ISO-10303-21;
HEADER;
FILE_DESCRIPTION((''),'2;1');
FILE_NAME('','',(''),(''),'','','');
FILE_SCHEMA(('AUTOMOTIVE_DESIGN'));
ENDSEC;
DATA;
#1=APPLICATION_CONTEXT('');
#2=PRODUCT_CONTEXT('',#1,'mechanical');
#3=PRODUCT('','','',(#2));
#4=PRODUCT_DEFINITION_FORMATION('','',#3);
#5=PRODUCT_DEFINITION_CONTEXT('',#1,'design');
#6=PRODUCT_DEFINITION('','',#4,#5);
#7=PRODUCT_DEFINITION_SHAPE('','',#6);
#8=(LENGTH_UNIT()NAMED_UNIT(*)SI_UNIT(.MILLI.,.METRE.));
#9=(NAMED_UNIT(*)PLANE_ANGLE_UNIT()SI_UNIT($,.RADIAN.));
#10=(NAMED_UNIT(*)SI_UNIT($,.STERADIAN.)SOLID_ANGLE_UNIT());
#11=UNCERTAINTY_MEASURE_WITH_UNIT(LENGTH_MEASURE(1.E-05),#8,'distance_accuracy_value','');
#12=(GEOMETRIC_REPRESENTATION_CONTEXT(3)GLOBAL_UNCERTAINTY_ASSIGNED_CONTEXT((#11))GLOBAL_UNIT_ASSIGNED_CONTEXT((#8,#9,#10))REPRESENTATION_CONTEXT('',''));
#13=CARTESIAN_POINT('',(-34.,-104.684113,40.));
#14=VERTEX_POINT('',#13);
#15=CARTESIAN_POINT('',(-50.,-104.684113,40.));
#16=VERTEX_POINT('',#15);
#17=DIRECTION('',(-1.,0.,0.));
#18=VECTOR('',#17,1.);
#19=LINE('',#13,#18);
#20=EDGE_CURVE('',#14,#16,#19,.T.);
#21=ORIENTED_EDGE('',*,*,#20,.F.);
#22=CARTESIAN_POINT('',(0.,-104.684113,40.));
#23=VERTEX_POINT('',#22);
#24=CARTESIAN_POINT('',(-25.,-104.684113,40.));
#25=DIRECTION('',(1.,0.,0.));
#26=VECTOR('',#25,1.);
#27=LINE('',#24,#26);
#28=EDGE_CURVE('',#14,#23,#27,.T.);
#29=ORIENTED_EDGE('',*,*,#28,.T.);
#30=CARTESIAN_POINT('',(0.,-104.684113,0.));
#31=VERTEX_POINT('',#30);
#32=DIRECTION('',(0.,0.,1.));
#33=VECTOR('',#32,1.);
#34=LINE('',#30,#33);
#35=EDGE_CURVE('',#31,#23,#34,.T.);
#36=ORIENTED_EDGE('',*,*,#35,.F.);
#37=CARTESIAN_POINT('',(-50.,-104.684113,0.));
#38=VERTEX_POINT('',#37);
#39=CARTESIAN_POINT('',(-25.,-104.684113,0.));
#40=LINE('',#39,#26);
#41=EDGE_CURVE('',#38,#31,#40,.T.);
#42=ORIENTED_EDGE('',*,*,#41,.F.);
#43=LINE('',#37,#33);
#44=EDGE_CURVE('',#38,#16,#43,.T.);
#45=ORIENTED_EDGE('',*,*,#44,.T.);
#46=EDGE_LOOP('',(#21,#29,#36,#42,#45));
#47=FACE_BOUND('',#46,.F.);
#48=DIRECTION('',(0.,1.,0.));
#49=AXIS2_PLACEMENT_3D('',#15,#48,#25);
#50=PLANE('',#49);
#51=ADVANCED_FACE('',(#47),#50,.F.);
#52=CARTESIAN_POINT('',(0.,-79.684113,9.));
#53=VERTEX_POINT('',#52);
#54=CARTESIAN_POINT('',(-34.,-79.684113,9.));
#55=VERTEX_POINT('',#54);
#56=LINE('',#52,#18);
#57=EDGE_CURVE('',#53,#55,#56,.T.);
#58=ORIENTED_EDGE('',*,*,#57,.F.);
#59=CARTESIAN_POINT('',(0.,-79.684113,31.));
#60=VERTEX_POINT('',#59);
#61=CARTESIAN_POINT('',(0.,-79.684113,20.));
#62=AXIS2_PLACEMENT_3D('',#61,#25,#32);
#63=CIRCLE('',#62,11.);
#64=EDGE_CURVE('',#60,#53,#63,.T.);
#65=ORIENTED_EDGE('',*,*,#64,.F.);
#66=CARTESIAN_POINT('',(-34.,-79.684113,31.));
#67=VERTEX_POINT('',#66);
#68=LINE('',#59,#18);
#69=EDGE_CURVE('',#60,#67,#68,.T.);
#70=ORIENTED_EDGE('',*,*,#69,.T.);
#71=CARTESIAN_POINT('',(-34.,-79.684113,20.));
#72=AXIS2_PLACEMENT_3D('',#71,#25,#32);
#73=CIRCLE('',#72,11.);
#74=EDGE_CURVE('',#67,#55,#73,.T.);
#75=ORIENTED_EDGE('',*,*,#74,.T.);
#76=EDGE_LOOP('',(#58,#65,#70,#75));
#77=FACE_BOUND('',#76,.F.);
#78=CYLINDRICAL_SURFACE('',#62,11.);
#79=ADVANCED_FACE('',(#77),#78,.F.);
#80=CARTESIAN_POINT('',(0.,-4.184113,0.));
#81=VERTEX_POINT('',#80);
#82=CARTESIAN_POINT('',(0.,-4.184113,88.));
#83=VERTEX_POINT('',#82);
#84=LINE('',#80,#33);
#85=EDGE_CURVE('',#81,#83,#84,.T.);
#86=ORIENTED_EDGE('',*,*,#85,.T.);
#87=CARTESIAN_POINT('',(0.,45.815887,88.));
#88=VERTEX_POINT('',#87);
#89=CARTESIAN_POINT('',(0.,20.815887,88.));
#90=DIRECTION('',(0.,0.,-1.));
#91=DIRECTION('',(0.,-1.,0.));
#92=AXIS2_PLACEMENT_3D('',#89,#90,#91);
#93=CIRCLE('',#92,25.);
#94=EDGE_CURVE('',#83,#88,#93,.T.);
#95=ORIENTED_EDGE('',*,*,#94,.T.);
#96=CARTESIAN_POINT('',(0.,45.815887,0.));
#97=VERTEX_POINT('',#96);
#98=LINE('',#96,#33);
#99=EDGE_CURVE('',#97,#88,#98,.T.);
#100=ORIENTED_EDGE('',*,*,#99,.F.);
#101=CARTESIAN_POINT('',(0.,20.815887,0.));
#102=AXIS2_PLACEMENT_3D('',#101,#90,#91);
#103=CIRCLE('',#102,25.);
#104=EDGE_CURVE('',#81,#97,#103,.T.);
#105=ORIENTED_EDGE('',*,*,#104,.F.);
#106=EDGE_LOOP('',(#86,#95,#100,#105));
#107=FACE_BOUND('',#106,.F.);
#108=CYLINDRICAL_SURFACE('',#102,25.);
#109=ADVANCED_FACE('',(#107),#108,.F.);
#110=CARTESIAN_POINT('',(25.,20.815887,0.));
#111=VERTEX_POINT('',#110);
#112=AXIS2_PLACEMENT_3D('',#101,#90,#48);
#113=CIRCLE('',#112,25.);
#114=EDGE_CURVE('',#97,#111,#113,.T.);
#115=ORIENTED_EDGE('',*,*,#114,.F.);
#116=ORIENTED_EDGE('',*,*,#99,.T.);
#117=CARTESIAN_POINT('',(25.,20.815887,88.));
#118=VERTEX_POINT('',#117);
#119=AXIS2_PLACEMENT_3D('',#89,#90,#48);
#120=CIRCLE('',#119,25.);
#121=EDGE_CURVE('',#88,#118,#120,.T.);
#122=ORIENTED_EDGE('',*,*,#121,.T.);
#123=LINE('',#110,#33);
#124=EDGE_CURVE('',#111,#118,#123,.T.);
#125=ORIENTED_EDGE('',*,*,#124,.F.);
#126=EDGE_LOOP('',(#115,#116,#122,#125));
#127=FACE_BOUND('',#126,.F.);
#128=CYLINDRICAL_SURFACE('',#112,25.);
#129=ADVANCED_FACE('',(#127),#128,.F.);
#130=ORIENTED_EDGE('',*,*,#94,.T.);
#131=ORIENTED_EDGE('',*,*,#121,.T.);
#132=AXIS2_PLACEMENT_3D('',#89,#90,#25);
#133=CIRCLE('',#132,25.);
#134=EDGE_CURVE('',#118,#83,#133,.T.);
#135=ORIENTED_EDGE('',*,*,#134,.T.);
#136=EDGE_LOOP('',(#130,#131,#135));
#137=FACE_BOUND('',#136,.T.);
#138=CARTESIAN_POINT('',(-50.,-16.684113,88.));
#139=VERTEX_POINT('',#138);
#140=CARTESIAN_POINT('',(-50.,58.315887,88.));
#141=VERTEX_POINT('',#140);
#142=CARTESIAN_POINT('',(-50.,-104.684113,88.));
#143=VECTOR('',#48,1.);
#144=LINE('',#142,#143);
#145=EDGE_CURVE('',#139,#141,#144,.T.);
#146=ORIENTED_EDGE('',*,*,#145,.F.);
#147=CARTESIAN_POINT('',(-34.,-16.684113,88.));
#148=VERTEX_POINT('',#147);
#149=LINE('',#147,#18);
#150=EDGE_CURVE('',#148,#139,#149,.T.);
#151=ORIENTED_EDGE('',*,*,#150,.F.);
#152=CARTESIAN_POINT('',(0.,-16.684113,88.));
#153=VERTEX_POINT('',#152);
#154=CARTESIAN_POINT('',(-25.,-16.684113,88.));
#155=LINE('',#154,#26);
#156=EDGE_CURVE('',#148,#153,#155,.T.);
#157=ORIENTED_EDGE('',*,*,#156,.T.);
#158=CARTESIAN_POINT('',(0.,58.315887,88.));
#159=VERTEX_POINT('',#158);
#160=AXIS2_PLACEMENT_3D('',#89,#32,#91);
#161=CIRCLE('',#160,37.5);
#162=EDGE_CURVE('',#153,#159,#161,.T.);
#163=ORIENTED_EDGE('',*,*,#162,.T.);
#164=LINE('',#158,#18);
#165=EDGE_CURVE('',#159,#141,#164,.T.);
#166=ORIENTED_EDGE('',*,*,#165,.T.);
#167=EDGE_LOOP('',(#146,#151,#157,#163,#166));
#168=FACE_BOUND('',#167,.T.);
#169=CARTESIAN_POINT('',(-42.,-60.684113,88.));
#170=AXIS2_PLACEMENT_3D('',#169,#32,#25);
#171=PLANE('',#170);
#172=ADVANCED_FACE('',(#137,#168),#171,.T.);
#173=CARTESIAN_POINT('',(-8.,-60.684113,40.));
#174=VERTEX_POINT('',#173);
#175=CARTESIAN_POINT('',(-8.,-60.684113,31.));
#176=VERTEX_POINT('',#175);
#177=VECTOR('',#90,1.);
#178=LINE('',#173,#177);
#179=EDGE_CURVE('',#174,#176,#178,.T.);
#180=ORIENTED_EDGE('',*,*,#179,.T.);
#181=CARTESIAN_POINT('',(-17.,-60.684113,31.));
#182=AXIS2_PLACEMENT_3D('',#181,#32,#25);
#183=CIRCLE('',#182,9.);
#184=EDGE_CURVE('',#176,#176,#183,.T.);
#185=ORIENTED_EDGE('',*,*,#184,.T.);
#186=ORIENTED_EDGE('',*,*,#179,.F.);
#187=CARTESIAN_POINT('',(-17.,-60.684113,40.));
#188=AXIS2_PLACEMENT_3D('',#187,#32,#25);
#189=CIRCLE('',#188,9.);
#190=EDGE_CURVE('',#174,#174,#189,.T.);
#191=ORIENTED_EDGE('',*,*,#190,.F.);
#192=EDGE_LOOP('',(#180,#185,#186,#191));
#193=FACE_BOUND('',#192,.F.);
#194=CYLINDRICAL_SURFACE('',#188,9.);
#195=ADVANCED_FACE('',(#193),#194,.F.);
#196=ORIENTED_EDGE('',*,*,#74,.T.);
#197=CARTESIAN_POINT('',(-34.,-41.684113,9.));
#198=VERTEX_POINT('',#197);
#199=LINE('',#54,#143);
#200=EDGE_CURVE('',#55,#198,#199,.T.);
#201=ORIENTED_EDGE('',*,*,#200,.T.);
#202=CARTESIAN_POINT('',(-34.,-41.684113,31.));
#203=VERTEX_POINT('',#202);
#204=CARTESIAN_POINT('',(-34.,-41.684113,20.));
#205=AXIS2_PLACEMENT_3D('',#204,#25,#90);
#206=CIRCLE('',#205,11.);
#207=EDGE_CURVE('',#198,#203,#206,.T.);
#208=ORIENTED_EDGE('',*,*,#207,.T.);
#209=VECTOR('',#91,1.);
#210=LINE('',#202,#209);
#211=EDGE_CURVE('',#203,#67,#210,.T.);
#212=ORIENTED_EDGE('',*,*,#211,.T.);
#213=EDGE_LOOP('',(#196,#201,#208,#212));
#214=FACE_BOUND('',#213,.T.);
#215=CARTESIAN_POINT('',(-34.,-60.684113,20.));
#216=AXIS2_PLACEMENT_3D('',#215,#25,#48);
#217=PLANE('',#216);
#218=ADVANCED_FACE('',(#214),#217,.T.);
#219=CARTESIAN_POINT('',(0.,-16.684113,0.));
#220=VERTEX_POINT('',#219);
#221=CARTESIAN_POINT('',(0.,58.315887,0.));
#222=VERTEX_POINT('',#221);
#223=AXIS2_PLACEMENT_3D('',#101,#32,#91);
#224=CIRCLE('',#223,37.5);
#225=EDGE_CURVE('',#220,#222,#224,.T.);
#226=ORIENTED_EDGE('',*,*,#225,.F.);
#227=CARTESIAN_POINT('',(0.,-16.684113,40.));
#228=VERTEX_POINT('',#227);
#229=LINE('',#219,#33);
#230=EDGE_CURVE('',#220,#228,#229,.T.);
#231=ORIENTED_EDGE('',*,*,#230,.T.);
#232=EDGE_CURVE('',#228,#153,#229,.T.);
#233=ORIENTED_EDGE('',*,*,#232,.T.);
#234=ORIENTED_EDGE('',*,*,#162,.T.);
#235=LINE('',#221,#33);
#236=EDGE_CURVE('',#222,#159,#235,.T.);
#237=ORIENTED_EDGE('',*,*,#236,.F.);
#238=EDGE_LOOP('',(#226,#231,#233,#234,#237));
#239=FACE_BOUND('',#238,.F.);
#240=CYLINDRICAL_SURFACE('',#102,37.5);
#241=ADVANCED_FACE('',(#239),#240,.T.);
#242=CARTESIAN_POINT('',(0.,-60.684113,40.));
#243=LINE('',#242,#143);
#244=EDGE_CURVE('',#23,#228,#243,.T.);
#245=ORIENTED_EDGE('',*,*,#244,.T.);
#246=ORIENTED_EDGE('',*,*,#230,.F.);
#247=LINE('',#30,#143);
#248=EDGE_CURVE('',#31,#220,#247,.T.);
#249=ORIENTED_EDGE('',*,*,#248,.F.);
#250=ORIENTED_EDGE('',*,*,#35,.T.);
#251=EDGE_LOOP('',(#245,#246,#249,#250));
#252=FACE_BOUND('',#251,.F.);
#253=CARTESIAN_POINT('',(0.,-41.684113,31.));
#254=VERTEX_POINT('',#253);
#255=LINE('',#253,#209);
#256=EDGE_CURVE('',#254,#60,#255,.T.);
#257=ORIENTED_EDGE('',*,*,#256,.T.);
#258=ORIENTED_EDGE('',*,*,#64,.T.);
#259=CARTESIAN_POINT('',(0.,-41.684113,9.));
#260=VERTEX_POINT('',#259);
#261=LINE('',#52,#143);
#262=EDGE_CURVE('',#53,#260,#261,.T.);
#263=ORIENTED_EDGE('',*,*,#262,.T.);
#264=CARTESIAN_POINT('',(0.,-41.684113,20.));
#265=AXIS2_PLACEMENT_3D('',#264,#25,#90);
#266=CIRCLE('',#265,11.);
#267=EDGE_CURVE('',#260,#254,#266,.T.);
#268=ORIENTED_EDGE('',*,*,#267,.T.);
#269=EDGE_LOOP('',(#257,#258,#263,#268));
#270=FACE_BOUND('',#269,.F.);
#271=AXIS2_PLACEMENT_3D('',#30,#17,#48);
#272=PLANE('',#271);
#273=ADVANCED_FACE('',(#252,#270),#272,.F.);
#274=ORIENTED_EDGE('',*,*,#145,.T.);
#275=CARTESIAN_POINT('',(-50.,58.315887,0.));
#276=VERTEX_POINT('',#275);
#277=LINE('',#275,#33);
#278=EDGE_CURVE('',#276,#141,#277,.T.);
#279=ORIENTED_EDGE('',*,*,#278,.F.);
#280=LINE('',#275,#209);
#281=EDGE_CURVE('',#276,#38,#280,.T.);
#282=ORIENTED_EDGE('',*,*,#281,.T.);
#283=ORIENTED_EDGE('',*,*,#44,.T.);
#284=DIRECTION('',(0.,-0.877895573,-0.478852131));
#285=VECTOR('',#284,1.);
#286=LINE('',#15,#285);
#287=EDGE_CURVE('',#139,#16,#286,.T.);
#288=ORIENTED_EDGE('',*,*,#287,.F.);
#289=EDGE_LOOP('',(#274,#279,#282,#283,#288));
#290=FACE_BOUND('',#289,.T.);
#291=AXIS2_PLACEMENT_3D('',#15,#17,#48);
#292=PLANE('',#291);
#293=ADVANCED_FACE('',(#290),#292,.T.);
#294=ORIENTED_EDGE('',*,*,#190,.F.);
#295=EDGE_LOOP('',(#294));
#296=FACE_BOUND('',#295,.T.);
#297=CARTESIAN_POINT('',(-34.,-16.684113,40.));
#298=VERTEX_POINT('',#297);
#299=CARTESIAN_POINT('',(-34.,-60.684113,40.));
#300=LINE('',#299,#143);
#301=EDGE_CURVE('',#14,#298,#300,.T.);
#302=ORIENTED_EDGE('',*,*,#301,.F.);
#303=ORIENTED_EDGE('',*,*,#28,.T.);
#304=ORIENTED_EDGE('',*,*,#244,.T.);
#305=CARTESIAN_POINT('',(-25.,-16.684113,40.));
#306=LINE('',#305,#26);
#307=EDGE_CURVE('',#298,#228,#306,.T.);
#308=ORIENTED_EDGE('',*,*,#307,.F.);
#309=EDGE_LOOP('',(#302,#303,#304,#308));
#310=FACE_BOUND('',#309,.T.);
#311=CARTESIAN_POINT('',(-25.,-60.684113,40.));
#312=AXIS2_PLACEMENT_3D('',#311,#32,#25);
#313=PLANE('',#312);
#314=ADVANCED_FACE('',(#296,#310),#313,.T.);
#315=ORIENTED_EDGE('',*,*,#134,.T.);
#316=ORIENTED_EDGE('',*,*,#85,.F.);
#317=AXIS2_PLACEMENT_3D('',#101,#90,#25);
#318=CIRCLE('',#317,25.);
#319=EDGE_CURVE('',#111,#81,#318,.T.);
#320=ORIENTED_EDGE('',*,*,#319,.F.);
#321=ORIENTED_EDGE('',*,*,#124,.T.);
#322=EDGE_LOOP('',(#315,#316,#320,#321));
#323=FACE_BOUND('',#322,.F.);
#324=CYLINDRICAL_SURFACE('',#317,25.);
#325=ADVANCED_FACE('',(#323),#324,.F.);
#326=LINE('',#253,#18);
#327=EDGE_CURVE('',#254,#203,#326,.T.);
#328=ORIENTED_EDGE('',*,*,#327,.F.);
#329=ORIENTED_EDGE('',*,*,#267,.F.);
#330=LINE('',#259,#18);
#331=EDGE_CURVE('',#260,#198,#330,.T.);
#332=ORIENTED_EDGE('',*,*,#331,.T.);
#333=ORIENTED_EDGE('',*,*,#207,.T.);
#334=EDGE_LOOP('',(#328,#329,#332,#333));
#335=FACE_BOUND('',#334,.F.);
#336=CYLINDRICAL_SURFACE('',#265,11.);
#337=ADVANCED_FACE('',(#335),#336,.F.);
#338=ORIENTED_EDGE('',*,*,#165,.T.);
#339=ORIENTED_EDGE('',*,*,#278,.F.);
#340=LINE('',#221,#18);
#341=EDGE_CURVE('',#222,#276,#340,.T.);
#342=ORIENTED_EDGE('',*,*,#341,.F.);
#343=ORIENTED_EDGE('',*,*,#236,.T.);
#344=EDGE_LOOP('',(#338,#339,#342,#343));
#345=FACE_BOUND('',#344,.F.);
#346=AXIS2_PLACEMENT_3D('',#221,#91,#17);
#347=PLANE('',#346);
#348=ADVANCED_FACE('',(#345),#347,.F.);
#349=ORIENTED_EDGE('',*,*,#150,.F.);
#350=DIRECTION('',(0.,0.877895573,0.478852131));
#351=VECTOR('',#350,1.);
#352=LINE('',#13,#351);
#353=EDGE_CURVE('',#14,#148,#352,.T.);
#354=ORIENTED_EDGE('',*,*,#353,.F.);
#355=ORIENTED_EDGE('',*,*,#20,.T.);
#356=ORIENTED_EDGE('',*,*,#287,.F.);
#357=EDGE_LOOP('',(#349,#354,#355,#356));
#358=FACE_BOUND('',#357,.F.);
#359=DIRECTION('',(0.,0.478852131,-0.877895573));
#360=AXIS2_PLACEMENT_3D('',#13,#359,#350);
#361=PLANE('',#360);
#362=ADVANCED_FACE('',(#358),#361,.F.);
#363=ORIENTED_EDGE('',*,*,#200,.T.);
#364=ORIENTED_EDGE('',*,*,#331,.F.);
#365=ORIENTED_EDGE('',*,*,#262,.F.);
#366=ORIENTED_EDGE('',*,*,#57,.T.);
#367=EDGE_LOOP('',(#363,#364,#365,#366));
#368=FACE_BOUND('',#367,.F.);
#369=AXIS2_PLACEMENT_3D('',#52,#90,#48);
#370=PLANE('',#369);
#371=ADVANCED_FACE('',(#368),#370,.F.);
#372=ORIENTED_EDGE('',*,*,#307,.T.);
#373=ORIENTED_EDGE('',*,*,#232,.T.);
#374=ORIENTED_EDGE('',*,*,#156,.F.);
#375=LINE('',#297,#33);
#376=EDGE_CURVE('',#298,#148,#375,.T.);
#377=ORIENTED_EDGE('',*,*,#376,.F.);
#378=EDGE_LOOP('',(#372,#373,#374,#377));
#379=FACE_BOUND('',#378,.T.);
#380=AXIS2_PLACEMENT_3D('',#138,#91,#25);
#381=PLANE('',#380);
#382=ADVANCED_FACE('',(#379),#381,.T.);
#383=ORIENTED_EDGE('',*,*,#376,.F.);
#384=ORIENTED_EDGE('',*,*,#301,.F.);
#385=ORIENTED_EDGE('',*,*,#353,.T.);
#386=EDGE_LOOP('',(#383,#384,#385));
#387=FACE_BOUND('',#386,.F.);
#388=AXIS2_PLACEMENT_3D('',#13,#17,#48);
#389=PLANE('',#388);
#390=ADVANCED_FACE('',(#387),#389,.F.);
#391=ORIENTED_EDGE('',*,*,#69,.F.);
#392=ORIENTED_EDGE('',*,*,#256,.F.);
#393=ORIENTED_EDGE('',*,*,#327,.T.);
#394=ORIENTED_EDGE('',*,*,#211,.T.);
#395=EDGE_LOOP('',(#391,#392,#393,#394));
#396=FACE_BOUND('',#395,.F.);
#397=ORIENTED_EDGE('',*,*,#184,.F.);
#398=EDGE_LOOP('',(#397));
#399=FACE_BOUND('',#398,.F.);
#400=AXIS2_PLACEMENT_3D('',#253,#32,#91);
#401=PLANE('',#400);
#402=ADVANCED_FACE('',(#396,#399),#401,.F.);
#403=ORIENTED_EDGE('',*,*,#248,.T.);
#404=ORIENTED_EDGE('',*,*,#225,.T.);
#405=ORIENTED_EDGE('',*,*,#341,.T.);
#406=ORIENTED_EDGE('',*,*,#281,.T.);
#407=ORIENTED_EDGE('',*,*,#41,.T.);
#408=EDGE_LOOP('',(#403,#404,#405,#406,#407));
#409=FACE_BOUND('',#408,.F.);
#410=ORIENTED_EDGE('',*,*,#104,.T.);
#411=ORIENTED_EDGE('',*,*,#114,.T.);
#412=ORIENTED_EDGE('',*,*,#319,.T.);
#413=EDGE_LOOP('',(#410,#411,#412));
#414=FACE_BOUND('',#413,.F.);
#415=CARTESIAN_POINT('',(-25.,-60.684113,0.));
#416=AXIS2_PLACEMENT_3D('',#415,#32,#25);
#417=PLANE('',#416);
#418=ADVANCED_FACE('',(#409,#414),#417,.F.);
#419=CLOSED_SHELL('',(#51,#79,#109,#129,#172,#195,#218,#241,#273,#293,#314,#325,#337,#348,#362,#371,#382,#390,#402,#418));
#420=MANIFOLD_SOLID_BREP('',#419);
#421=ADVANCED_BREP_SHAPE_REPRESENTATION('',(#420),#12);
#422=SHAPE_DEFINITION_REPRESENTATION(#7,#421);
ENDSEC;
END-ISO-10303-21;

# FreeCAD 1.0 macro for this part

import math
import FreeCAD as App
import Part
import Sketcher

V = App.Vector
Q = App.Units.Quantity


def add_polygon(sketch, points):
    """Adds a closed chain of lines whose ends are joined by coincident constraints."""
    first, n = sketch.GeometryCount, len(points)
    for a, b in zip(points, points[1:] + points[:1]):
        sketch.addGeometry(Part.LineSegment(App.Vector(*a, 0), App.Vector(*b, 0)), False)
    for i in range(n):
        sketch.addConstraint(Sketcher.Constraint("Coincident", first + i, 2, first + (i + 1) % n, 1))

doc = App.newDocument("Part")
body = doc.addObject("PartDesign::Body", "Body")

sketch1 = doc.addObject("Sketcher::SketchObject", "Sketch")
body.addObject(sketch1)
sketch1.AttachmentSupport = (doc.XY_Plane, [""])
sketch1.MapMode = "FlatFace"
sketch1.addGeometry([
    Part.LineSegment(V(-50, -104.684113, 0), V(0, -104.684113, 0)),
    Part.LineSegment(V(0, -104.684113, 0), V(0, -16.684113, 0)),
    Part.ArcOfCircle(Part.Circle(V(0, 20.815887, 0), V(0, 0, 1), 37.5), math.radians(-90), math.radians(90)),
    Part.LineSegment(V(0, 58.315887, 0), V(-50, 58.315887, 0)),
    Part.LineSegment(V(-50, 58.315887, 0), V(-50, -104.684113, 0)),
    Part.ArcOfCircle(Part.Circle(V(0, 20.815887, 0), V(0, 0, 1), 25), math.radians(90), math.radians(270)),
    Part.ArcOfCircle(Part.Circle(V(0, 20.815887, 0), V(0, 0, 1), 25), math.radians(0), math.radians(90)),
    Part.ArcOfCircle(Part.Circle(V(0, 20.815887, 0), V(0, 0, 1), 25), math.radians(-90), math.radians(0)),
], False)
sketch1.addConstraint([
    Sketcher.Constraint("Coincident", 0, 2, 1, 1),
    Sketcher.Constraint("Coincident", 1, 2, 2, 1),
    Sketcher.Constraint("Tangent", 2, 2, 3, 1),
    Sketcher.Constraint("Coincident", 3, 2, 4, 1),
    Sketcher.Constraint("Coincident", 4, 2, 0, 1),
    Sketcher.Constraint("Tangent", 5, 1, 6, 2),
    Sketcher.Constraint("Tangent", 6, 1, 7, 2),
    Sketcher.Constraint("Tangent", 7, 1, 5, 2),
    Sketcher.Constraint("Horizontal", 0),
    Sketcher.Constraint("Vertical", 1),
    Sketcher.Constraint("Horizontal", 3),
    Sketcher.Constraint("Vertical", 4),
    Sketcher.Constraint("Coincident", 5, 3, 2, 3),
    Sketcher.Constraint("PointOnObject", 2, 3, -2),
    Sketcher.Constraint("PointOnObject", 0, 2, -2),
    Sketcher.Constraint("PointOnObject", 5, 1, -2),
    Sketcher.Constraint("PointOnObject", 7, 1, -2),
    Sketcher.Constraint("Horizontal", 7, 3, 6, 1),
    Sketcher.Constraint("Radius", 5, Q("25 mm")),
    Sketcher.Constraint("Radius", 2, Q("37.5 mm")),
    Sketcher.Constraint("DistanceX", 0, 1, 0, 2, Q("50 mm")),
    Sketcher.Constraint("DistanceY", 1, 1, 1, 2, Q("88 mm")),
    Sketcher.Constraint("DistanceY", -1, 1, 2, 3, Q("20.815887 mm")),
])
pad1 = doc.addObject("PartDesign::Pad", "Pad")
body.addObject(pad1)
pad1.Profile = sketch1
pad1.Length = 88

sketch2 = doc.addObject("Sketcher::SketchObject", "Sketch001")
body.addObject(sketch2)
sketch2.AttachmentSupport = (doc.XY_Plane, [""])
sketch2.MapMode = "FlatFace"
sketch2.AttachmentOffset = App.Placement(V(0, 0, 88), App.Rotation())
add_polygon(sketch2, [(-50, -16.684113), (-50, -104.684113), (0, -104.684113), (0, -16.684113)])
sketch2.addConstraint([
    Sketcher.Constraint("Vertical", 0),
    Sketcher.Constraint("Horizontal", 1),
    Sketcher.Constraint("Vertical", 2),
    Sketcher.Constraint("Horizontal", 3),
    Sketcher.Constraint("PointOnObject", 1, 2, -2),
    Sketcher.Constraint("DistanceX", 1, 1, 1, 2, Q("50 mm")),
    Sketcher.Constraint("DistanceY", 0, 2, 0, 1, Q("88 mm")),
    Sketcher.Constraint("DistanceY", 0, 2, -1, 1, Q("104.684113 mm")),
])
pocket1 = doc.addObject("PartDesign::Pocket", "Pocket")
body.addObject(pocket1)
pocket1.Profile = sketch2
pocket1.Length = 48

sketch3 = doc.addObject("Sketcher::SketchObject", "Sketch002")
body.addObject(sketch3)
sketch3.AttachmentSupport = (doc.XY_Plane, [""])
sketch3.MapMode = "FlatFace"
sketch3.AttachmentOffset = App.Placement(V(0, 0, 40), App.Rotation())
add_polygon(sketch3, [(-50, -16.684113), (-50, -104.684113), (-34, -104.684113), (-34, -16.684113)])
sketch3.addConstraint([
    Sketcher.Constraint("Vertical", 0),
    Sketcher.Constraint("Horizontal", 1),
    Sketcher.Constraint("Vertical", 2),
    Sketcher.Constraint("Horizontal", 3),
    Sketcher.Constraint("DistanceX", 1, 1, 1, 2, Q("16 mm")),
    Sketcher.Constraint("DistanceY", 0, 2, 0, 1, Q("88 mm")),
    Sketcher.Constraint("DistanceX", 0, 2, -1, 1, Q("50 mm")),
    Sketcher.Constraint("DistanceY", 0, 2, -1, 1, Q("104.684113 mm")),
])
pad2 = doc.addObject("PartDesign::Pad", "Pad001")
body.addObject(pad2)
pad2.Profile = sketch3
pad2.Length = 48

sketch4 = doc.addObject("Sketcher::SketchObject", "Sketch003")
body.addObject(sketch4)
sketch4.AttachmentSupport = (doc.YZ_Plane, [""])
sketch4.MapMode = "FlatFace"
sketch4.AttachmentOffset = App.Placement(V(0, 0, -34), App.Rotation())
add_polygon(sketch4, [(-104.684113, 88), (-104.684113, 40), (-16.684113, 88)])
sketch4.addConstraint([
    Sketcher.Constraint("Vertical", 0),
    Sketcher.Constraint("Horizontal", 2),
    Sketcher.Constraint("DistanceX", 2, 2, 2, 1, Q("88 mm")),
    Sketcher.Constraint("DistanceY", 0, 2, 0, 1, Q("48 mm")),
    Sketcher.Constraint("DistanceY", -1, 1, 0, 2, Q("40 mm")),
    Sketcher.Constraint("DistanceX", 0, 2, -1, 1, Q("104.684113 mm")),
])
pocket2 = doc.addObject("PartDesign::Pocket", "Pocket001")
body.addObject(pocket2)
pocket2.Profile = sketch4
pocket2.Length = 25

sketch5 = doc.addObject("Sketcher::SketchObject", "Sketch004")
body.addObject(sketch5)
sketch5.AttachmentSupport = (doc.XY_Plane, [""])
sketch5.MapMode = "FlatFace"
sketch5.AttachmentOffset = App.Placement(V(0, 0, 40), App.Rotation())
sketch5.addGeometry(Part.Circle(V(-17, -60.684113, 0), V(0, 0, 1), 9), False)
sketch5.addConstraint([
    Sketcher.Constraint("Diameter", 0, Q("18 mm")),
    Sketcher.Constraint("DistanceX", 0, 3, -1, 1, Q("17 mm")),
    Sketcher.Constraint("DistanceY", 0, 3, -1, 1, Q("60.684113 mm")),
])
pocket3 = doc.addObject("PartDesign::Pocket", "Pocket002")
body.addObject(pocket3)
pocket3.Profile = sketch5
pocket3.Length = 31

sketch6 = doc.addObject("Sketcher::SketchObject", "Sketch005")
body.addObject(sketch6)
sketch6.AttachmentSupport = (doc.YZ_Plane, [""])
sketch6.MapMode = "FlatFace"
sketch6.addGeometry([
    Part.LineSegment(V(-41.684113, 31, 0), V(-79.684113, 31, 0)),
    Part.ArcOfCircle(Part.Circle(V(-79.684113, 20, 0), V(0, 0, 1), 11), math.radians(90), math.radians(270)),
    Part.LineSegment(V(-79.684113, 9, 0), V(-41.684113, 9, 0)),
    Part.ArcOfCircle(Part.Circle(V(-41.684113, 20, 0), V(0, 0, 1), 11), math.radians(-90), math.radians(90)),
], False)
sketch6.addConstraint([
    Sketcher.Constraint("Tangent", 0, 2, 1, 1),
    Sketcher.Constraint("Tangent", 1, 2, 2, 1),
    Sketcher.Constraint("Tangent", 2, 2, 3, 1),
    Sketcher.Constraint("Tangent", 3, 2, 0, 1),
    Sketcher.Constraint("Horizontal", 0),
    Sketcher.Constraint("Horizontal", 2),
    Sketcher.Constraint("Radius", 1, Q("11 mm")),
    Sketcher.Constraint("DistanceX", 0, 2, 0, 1, Q("38 mm")),
    Sketcher.Constraint("DistanceY", -1, 1, 1, 3, Q("20 mm")),
    Sketcher.Constraint("DistanceX", 1, 3, -1, 1, Q("79.684113 mm")),
])
pocket4 = doc.addObject("PartDesign::Pocket", "Pocket003")
body.addObject(pocket4)
pocket4.Profile = sketch6
pocket4.Length = 34

doc.recompute()
